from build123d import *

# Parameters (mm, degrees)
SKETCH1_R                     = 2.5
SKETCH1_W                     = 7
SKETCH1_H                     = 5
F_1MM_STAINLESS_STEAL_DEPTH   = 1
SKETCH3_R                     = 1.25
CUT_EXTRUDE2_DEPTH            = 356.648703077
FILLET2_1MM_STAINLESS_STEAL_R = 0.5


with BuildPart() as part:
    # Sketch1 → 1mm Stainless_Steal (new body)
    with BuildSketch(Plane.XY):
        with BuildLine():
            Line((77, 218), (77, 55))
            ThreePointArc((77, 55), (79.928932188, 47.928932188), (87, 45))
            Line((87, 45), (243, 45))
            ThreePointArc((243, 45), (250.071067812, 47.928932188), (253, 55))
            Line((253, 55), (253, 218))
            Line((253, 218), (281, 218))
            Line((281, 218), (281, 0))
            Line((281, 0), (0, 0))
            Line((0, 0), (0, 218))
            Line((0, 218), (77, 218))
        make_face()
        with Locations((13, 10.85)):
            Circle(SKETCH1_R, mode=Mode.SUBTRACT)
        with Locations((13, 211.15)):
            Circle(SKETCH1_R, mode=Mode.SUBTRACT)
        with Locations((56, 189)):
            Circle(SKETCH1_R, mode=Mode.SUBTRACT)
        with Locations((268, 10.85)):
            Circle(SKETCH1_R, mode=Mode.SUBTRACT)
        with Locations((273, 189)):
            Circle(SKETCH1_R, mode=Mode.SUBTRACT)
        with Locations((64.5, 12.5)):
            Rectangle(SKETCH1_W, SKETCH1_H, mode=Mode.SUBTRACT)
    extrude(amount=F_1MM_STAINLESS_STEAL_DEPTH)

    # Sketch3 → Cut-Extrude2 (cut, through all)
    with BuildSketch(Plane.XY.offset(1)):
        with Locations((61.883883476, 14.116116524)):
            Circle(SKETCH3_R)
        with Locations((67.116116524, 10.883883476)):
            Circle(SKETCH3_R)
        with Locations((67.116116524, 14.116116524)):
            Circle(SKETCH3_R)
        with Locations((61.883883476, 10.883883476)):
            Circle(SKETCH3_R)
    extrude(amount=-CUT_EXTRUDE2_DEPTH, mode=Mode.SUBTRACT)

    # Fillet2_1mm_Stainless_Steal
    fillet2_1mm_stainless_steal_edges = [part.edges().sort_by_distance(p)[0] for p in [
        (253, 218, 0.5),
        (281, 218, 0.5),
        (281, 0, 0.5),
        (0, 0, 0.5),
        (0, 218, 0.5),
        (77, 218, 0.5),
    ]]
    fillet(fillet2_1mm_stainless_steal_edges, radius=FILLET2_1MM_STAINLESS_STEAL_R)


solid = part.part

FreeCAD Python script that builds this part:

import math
import FreeCAD as App
import Part
import Sketcher


def edges_at(feature, points):
    """Names of the edges that pass closest to the given points."""
    edges = feature.Shape.Edges
    near = lambda p: min(range(len(edges)), key=lambda i: edges[i].distToShape(Part.Vertex(*p))[0])
    return sorted({f"Edge{near(p) + 1}" for p in points})

doc = App.newDocument("Part")
body = doc.addObject("PartDesign::Body", "Body")

# Sketch on XY plane
sketch1 = body.newObject("Sketcher::SketchObject", "Sketch")
sketch1.AttachmentSupport = (doc.getObject("XY_Plane"), [""])
sketch1.MapMode = "FlatFace"
sketch1.addGeometry([
    Part.LineSegment(App.Vector(77, 55, 0), App.Vector(77, 218, 0)),  # 0
    Part.LineSegment(App.Vector(77, 218, 0), App.Vector(0, 218, 0)),  # 1
    Part.LineSegment(App.Vector(0, 218, 0), App.Vector(0, 0, 0)),  # 2
    Part.LineSegment(App.Vector(0, 0, 0), App.Vector(281, 0, 0)),  # 3
    Part.LineSegment(App.Vector(281, 0, 0), App.Vector(281, 218, 0)),  # 4
    Part.LineSegment(App.Vector(281, 218, 0), App.Vector(253, 218, 0)),  # 5
    Part.LineSegment(App.Vector(253, 218, 0), App.Vector(253, 55, 0)),  # 6
    Part.ArcOfCircle(Part.Circle(App.Vector(243, 55, 0), App.Vector(0, 0, 1), 10), math.radians(-90), math.radians(0)),  # 7
    Part.LineSegment(App.Vector(243, 45, 0), App.Vector(87, 45, 0)),  # 8
    Part.ArcOfCircle(Part.Circle(App.Vector(87, 55, 0), App.Vector(0, 0, 1), 10), math.radians(180), math.radians(270)),  # 9
    Part.Circle(App.Vector(268, 10.85, 0), App.Vector(0, 0, 1), 2.5),  # 10
    Part.LineSegment(App.Vector(61, 10, 0), App.Vector(61, 15, 0)),  # 11
    Part.LineSegment(App.Vector(61, 15, 0), App.Vector(68, 15, 0)),  # 12
    Part.LineSegment(App.Vector(68, 15, 0), App.Vector(68, 10, 0)),  # 13
    Part.LineSegment(App.Vector(68, 10, 0), App.Vector(61, 10, 0)),  # 14
    Part.Circle(App.Vector(13, 10.85, 0), App.Vector(0, 0, 1), 2.5),  # 15
    Part.Circle(App.Vector(273, 189, 0), App.Vector(0, 0, 1), 2.5),  # 16
    Part.Circle(App.Vector(56, 189, 0), App.Vector(0, 0, 1), 2.5),  # 17
    Part.Circle(App.Vector(13, 211.15, 0), App.Vector(0, 0, 1), 2.5),  # 18
], False)
sketch1.addConstraint([
    Sketcher.Constraint("Coincident", 0, 2, 1, 1),
    Sketcher.Constraint("Coincident", 1, 2, 2, 1),
    Sketcher.Constraint("Coincident", 2, 2, 3, 1),
    Sketcher.Constraint("Coincident", 3, 2, 4, 1),
    Sketcher.Constraint("Coincident", 4, 2, 5, 1),
    Sketcher.Constraint("Coincident", 5, 2, 6, 1),
    Sketcher.Constraint("Tangent", 6, 2, 7, 2),
    Sketcher.Constraint("Tangent", 7, 1, 8, 1),
    Sketcher.Constraint("Tangent", 8, 2, 9, 2),
    Sketcher.Constraint("Tangent", 9, 1, 0, 1),
    Sketcher.Constraint("Coincident", 11, 2, 12, 1),
    Sketcher.Constraint("Coincident", 12, 2, 13, 1),
    Sketcher.Constraint("Coincident", 13, 2, 14, 1),
    Sketcher.Constraint("Coincident", 14, 2, 11, 1),
    Sketcher.Constraint("Vertical", 0),
    Sketcher.Constraint("Horizontal", 1),
    Sketcher.Constraint("Vertical", 2),
    Sketcher.Constraint("Horizontal", 3),
    Sketcher.Constraint("Vertical", 4),
    Sketcher.Constraint("Horizontal", 5),
    Sketcher.Constraint("Vertical", 6),
    Sketcher.Constraint("Horizontal", 8),
    Sketcher.Constraint("Vertical", 11),
    Sketcher.Constraint("Horizontal", 12),
    Sketcher.Constraint("Vertical", 13),
    Sketcher.Constraint("Horizontal", 14),
    Sketcher.Constraint("Coincident", 2, 2, -1, 1),
    Sketcher.Constraint("Equal", 7, 9),
    Sketcher.Constraint("Equal", 10, 15),
    Sketcher.Constraint("Equal", 15, 16),
    Sketcher.Constraint("Equal", 16, 17),
    Sketcher.Constraint("Equal", 17, 18),
    Sketcher.Constraint("Horizontal", 10, 3, 15, 3),
    Sketcher.Constraint("Horizontal", 16, 3, 17, 3),
    Sketcher.Constraint("Horizontal", 1, 2, 4, 2),
    Sketcher.Constraint("Vertical", 15, 3, 18, 3),
    Sketcher.Constraint("Diameter", 10, 5.0),
    Sketcher.Constraint("Radius", 7, 10.0),
    Sketcher.Constraint("DistanceX", 1, 2, 1, 1, 77.0),
    Sketcher.Constraint("DistanceX", 3, 1, 3, 2, 281.0),
    Sketcher.Constraint("DistanceX", 5, 2, 5, 1, 28.0),
    Sketcher.Constraint("DistanceX", 12, 1, 12, 2, 7.0),
    Sketcher.Constraint("DistanceY", 0, 1, 0, 2, 163.0),
    Sketcher.Constraint("DistanceY", 2, 2, 2, 1, 218.0),
    Sketcher.Constraint("DistanceY", 11, 1, 11, 2, 5.0),
    Sketcher.Constraint("DistanceX", -1, 1, 10, 3, 268.0),
    Sketcher.Constraint("DistanceX", -1, 1, 15, 3, 13.0),
    Sketcher.Constraint("DistanceX", -1, 1, 16, 3, 273.0),
    Sketcher.Constraint("DistanceY", -1, 1, 16, 3, 189.0),
    Sketcher.Constraint("DistanceX", -1, 1, 17, 3, 56.0),
    Sketcher.Constraint("DistanceX", -1, 1, 11, 2, 61.0),
    Sketcher.Constraint("DistanceY", -1, 1, 11, 2, 15.0),
    Sketcher.Constraint("DistanceY", 15, 3, 18, 3, 200.3),
    Sketcher.Constraint("DistanceY", -1, 1, 10, 3, 10.85),
])
pad1 = body.newObject("PartDesign::Pad", "Pad")
pad1.Profile = sketch1
pad1.Length = 1

# Sketch on XY plane
sketch2 = body.newObject("Sketcher::SketchObject", "Sketch001")
sketch2.AttachmentSupport = (doc.getObject("XY_Plane"), [""])
sketch2.MapMode = "FlatFace"
sketch2.AttachmentOffset = App.Placement(App.Vector(0, 0, 1), App.Rotation())
sketch2.addGeometry([
    Part.Circle(App.Vector(61.883883, 14.116117, 0), App.Vector(0, 0, 1), 1.25),
    Part.Circle(App.Vector(67.116117, 10.883883, 0), App.Vector(0, 0, 1), 1.25),
    Part.Circle(App.Vector(67.116117, 14.116117, 0), App.Vector(0, 0, 1), 1.25),
    Part.Circle(App.Vector(61.883883, 10.883883, 0), App.Vector(0, 0, 1), 1.25),
], False)
sketch2.addConstraint([
    Sketcher.Constraint("Equal", 0, 1),
    Sketcher.Constraint("Equal", 1, 2),
    Sketcher.Constraint("Equal", 2, 3),
    Sketcher.Constraint("Horizontal", 0, 3, 2, 3),
    Sketcher.Constraint("Horizontal", 1, 3, 3, 3),
    Sketcher.Constraint("Vertical", 1, 3, 2, 3),
    Sketcher.Constraint("Vertical", 0, 3, 3, 3),
    Sketcher.Constraint("Diameter", 0, 2.5),
    Sketcher.Constraint("DistanceX", -1, 1, 0, 3, 61.883883),
    Sketcher.Constraint("DistanceY", -1, 1, 0, 3, 14.116117),
    Sketcher.Constraint("DistanceX", -1, 1, 1, 3, 67.116117),
    Sketcher.Constraint("DistanceY", -1, 1, 1, 3, 10.883883),
])
pocket1 = body.newObject("PartDesign::Pocket", "Pocket")
pocket1.Profile = sketch2
pocket1.Type = "ThroughAll"
doc.recompute()

fillet = body.newObject("PartDesign::Fillet", "Fillet")
fillet.Base = (pocket1, edges_at(pocket1, [
    (253, 218, 0.5),
    (281, 218, 0.5),
    (281, 0, 0.5),
    (0, 0, 0.5),
    (0, 218, 0.5),
    (77, 218, 0.5),
]))
fillet.Radius = 0.5

doc.recompute()
